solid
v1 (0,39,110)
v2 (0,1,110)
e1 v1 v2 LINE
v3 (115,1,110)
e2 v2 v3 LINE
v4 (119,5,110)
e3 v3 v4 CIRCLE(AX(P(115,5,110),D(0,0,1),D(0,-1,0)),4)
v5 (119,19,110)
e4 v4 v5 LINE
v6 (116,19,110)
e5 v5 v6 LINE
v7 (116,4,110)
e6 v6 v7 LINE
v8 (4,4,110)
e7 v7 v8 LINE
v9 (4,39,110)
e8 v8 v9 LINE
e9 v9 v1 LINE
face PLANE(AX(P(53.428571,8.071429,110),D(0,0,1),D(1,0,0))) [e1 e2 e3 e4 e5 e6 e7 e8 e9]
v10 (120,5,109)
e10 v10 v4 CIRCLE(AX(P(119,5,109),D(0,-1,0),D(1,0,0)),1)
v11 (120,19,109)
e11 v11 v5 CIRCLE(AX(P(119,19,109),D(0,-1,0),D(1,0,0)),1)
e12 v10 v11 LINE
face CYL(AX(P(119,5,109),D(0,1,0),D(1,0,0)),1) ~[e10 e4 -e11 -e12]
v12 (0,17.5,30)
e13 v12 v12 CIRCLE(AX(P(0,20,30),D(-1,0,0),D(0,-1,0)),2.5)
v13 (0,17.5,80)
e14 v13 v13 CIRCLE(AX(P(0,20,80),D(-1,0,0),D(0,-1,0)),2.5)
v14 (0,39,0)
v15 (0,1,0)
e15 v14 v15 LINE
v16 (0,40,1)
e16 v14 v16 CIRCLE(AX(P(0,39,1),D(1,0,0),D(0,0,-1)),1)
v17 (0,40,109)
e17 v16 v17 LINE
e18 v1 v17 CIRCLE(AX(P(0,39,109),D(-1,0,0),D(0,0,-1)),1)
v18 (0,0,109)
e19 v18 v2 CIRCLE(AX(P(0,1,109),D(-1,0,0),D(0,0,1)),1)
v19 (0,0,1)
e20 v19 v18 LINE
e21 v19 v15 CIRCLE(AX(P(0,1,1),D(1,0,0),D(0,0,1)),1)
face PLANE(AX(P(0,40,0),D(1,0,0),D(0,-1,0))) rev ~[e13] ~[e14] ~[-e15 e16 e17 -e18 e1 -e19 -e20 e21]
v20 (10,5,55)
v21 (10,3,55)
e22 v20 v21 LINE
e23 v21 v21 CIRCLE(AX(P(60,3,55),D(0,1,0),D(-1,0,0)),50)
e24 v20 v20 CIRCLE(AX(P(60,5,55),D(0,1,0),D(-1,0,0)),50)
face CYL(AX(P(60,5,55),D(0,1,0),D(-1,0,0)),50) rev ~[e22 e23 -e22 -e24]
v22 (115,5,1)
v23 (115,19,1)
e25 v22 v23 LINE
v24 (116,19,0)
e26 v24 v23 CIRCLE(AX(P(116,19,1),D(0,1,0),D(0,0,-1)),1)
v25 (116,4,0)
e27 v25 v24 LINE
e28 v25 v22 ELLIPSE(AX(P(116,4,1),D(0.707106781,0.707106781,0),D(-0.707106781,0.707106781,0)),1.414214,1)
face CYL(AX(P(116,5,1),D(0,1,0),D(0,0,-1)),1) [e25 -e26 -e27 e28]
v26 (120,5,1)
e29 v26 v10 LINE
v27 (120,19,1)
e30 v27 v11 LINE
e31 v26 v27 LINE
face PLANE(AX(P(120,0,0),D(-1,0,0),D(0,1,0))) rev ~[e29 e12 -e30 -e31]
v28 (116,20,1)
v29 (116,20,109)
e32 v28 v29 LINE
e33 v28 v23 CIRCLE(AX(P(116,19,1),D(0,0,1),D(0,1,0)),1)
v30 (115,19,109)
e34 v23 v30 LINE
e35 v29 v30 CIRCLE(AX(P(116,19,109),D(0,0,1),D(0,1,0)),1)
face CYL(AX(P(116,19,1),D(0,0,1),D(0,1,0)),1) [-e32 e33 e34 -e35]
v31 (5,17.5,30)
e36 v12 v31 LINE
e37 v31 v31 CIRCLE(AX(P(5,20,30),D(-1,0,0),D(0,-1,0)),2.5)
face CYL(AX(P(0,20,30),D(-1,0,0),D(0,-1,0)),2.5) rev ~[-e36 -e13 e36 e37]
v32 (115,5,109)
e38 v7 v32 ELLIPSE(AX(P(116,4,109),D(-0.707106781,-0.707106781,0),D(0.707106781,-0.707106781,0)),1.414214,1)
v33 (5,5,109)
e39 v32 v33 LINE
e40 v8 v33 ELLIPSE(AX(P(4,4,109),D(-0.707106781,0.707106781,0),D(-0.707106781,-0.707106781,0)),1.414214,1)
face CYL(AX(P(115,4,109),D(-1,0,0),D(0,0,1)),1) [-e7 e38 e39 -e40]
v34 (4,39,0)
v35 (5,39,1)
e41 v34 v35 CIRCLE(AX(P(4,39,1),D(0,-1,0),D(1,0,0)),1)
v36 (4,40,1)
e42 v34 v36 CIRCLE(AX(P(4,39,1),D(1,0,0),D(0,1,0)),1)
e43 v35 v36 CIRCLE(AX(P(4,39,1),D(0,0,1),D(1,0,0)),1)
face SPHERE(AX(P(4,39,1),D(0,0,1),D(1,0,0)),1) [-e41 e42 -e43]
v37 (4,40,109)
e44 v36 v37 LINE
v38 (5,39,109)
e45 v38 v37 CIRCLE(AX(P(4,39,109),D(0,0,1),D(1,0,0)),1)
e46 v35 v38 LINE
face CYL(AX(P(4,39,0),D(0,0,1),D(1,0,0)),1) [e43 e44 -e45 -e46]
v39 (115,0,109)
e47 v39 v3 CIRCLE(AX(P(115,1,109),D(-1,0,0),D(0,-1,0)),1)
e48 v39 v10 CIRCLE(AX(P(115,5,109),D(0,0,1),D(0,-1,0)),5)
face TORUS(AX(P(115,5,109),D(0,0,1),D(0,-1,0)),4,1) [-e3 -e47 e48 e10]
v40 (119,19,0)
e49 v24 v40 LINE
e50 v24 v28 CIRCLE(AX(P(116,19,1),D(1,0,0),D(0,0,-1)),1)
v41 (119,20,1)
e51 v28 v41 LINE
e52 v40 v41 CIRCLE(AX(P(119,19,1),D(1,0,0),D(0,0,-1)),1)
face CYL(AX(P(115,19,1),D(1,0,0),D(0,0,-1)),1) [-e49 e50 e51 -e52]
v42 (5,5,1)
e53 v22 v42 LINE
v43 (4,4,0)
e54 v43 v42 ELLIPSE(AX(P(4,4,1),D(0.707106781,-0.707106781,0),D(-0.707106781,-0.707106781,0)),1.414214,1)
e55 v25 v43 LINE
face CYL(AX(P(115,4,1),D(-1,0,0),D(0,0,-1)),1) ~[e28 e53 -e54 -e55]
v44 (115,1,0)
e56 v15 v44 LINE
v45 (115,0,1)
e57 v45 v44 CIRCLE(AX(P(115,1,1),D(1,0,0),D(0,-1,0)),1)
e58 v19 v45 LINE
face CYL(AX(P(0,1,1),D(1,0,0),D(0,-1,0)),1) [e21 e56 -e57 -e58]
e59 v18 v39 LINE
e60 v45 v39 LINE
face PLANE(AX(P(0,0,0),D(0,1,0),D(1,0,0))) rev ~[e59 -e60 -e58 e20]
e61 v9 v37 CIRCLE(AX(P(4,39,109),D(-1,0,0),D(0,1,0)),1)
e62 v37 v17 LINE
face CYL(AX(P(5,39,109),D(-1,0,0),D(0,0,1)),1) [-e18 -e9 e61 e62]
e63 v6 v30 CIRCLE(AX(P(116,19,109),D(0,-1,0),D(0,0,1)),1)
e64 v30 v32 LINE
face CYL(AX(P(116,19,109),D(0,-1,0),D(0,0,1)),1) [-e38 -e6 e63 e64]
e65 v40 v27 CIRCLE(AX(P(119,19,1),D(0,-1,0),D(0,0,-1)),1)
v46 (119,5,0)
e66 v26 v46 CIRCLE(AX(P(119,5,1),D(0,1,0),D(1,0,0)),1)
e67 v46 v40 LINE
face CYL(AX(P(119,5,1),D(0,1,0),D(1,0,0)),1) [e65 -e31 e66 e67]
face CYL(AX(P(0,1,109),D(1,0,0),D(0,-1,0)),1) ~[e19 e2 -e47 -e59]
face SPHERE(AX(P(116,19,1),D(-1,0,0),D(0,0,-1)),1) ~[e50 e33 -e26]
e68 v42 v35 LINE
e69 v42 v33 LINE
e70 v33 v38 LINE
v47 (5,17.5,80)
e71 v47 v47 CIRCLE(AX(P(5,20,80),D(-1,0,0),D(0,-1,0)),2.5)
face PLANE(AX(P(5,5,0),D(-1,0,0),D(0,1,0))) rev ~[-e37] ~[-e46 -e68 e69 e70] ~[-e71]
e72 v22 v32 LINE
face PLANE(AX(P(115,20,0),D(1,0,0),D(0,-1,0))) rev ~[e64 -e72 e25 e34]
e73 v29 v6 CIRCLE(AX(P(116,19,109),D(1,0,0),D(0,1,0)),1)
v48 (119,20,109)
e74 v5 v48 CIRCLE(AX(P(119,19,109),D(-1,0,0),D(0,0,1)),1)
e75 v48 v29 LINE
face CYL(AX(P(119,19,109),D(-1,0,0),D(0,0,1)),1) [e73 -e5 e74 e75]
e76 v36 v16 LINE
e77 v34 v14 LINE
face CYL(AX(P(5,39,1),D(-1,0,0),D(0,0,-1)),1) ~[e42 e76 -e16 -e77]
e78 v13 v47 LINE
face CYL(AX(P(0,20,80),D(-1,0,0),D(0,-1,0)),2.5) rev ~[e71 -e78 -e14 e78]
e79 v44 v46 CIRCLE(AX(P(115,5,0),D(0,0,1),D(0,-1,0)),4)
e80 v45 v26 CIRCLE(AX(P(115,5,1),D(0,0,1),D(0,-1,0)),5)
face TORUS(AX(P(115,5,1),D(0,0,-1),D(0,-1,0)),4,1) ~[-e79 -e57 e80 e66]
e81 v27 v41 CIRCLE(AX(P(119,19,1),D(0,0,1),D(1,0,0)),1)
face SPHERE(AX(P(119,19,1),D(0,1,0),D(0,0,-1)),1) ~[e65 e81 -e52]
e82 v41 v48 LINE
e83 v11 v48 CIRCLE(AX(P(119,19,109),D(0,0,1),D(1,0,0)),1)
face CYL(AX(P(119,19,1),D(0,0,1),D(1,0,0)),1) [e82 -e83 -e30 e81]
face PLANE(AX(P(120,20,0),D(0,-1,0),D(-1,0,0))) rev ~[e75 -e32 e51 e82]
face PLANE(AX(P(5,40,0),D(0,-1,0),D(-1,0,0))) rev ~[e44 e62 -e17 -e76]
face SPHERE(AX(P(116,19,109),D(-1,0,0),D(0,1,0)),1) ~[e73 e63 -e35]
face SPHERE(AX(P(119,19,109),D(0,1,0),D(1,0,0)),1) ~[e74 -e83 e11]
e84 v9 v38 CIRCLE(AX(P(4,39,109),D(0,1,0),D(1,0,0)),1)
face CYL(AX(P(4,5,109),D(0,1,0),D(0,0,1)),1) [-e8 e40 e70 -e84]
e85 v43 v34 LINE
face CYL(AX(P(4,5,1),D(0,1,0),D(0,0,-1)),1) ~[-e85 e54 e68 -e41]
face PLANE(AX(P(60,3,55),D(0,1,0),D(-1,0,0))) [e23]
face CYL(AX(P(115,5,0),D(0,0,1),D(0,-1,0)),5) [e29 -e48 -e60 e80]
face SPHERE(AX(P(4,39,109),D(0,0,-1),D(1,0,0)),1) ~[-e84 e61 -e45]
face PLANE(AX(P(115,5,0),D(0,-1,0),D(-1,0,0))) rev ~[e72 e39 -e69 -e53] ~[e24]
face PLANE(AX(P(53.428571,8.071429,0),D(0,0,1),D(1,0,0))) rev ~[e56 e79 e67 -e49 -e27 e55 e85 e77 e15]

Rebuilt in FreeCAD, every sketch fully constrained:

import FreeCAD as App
import Part
import Sketcher
from FreeCAD import Vector


def edges_at(feature, points):
    """Names of the edges that pass closest to the given points."""
    edges = feature.Shape.Edges
    near = lambda p: min(range(len(edges)), key=lambda i: edges[i].distToShape(Part.Vertex(*p))[0])
    return sorted({f"Edge{near(p) + 1}" for p in points})

doc = App.newDocument("Part")
body = doc.addObject("PartDesign::Body", "Body")

# Sketch on XY plane
sketch1 = body.newObject("Sketcher::SketchObject", "Sketch")
sketch1.AttachmentSupport = (doc.getObject("XY_Plane"), [""])
sketch1.MapMode = "FlatFace"
sketch1.addGeometry(Part.LineSegment(Vector(0, 40, 0), Vector(0, 0, 0)), False)
sketch1.addGeometry(Part.LineSegment(Vector(0, 0, 0), Vector(120, 0, 0)), False)
sketch1.addGeometry(Part.LineSegment(Vector(120, 0, 0), Vector(120, 20, 0)), False)
sketch1.addGeometry(Part.LineSegment(Vector(120, 20, 0), Vector(115, 20, 0)), False)
sketch1.addGeometry(Part.LineSegment(Vector(115, 20, 0), Vector(115, 5, 0)), False)
sketch1.addGeometry(Part.LineSegment(Vector(115, 5, 0), Vector(5, 5, 0)), False)
sketch1.addGeometry(Part.LineSegment(Vector(5, 5, 0), Vector(5, 40, 0)), False)
sketch1.addGeometry(Part.LineSegment(Vector(5, 40, 0), Vector(0, 40, 0)), False)
sketch1.addConstraint(Sketcher.Constraint("Coincident", 0, 2, 1, 1))
sketch1.addConstraint(Sketcher.Constraint("Coincident", 1, 2, 2, 1))
sketch1.addConstraint(Sketcher.Constraint("Coincident", 2, 2, 3, 1))
sketch1.addConstraint(Sketcher.Constraint("Coincident", 3, 2, 4, 1))
sketch1.addConstraint(Sketcher.Constraint("Coincident", 4, 2, 5, 1))
sketch1.addConstraint(Sketcher.Constraint("Coincident", 5, 2, 6, 1))
sketch1.addConstraint(Sketcher.Constraint("Coincident", 6, 2, 7, 1))
sketch1.addConstraint(Sketcher.Constraint("Coincident", 7, 2, 0, 1))
sketch1.addConstraint(Sketcher.Constraint("Vertical", 0))
sketch1.addConstraint(Sketcher.Constraint("Horizontal", 1))
sketch1.addConstraint(Sketcher.Constraint("Vertical", 2))
sketch1.addConstraint(Sketcher.Constraint("Horizontal", 3))
sketch1.addConstraint(Sketcher.Constraint("Vertical", 4))
sketch1.addConstraint(Sketcher.Constraint("Horizontal", 5))
sketch1.addConstraint(Sketcher.Constraint("Vertical", 6))
sketch1.addConstraint(Sketcher.Constraint("Horizontal", 7))
sketch1.addConstraint(Sketcher.Constraint("Coincident", 0, 2, -1, 1))
sketch1.addConstraint(Sketcher.Constraint("Equal", 3, 7))
sketch1.addConstraint(Sketcher.Constraint("DistanceX", 1, 1, 1, 2, 120.0))
sketch1.addConstraint(Sketcher.Constraint("DistanceX", 3, 2, 3, 1, 5.0))
sketch1.addConstraint(Sketcher.Constraint("DistanceY", 0, 2, 0, 1, 40.0))
sketch1.addConstraint(Sketcher.Constraint("DistanceY", 2, 1, 2, 2, 20.0))
sketch1.addConstraint(Sketcher.Constraint("DistanceY", 4, 2, 4, 1, 15.0))
pad1 = body.newObject("PartDesign::Pad", "Pad")
pad1.Profile = sketch1
pad1.Length = 110

# Sketch on YZ plane
sketch2 = body.newObject("Sketcher::SketchObject", "Sketch001")
sketch2.AttachmentSupport = (doc.getObject("YZ_Plane"), [""])
sketch2.MapMode = "FlatFace"
sketch2.addGeometry(Part.Circle(Vector(20, 80, 0), Vector(0, 0, 1), 2.5), False)
sketch2.addGeometry(Part.Circle(Vector(20, 30, 0), Vector(0, 0, 1), 2.5), False)
sketch2.addConstraint(Sketcher.Constraint("Equal", 0, 1))
sketch2.addConstraint(Sketcher.Constraint("Vertical", 0, 3, 1, 3))
sketch2.addConstraint(Sketcher.Constraint("Diameter", 0, 5.0))
sketch2.addConstraint(Sketcher.Constraint("DistanceX", -1, 1, 0, 3, 20.0))
sketch2.addConstraint(Sketcher.Constraint("DistanceY", -1, 1, 0, 3, 80.0))
sketch2.addConstraint(Sketcher.Constraint("DistanceY", -1, 1, 1, 3, 30.0))
pocket1 = body.newObject("PartDesign::Pocket", "Pocket")
pocket1.Profile = sketch2
pocket1.Length = 5
pocket1.Reversed = True

# Sketch on XZ plane
sketch3 = body.newObject("Sketcher::SketchObject", "Sketch002")
sketch3.AttachmentSupport = (doc.getObject("XZ_Plane"), [""])
sketch3.MapMode = "FlatFace"
sketch3.AttachmentOffset = App.Placement(Vector(0, 0, -5), App.Rotation())
sketch3.addGeometry(Part.Circle(Vector(60, 55, 0), Vector(0, 0, 1), 50), False)
sketch3.addConstraint(Sketcher.Constraint("Diameter", 0, 100.0))
sketch3.addConstraint(Sketcher.Constraint("DistanceX", -1, 1, 0, 3, 60.0))
sketch3.addConstraint(Sketcher.Constraint("DistanceY", -1, 1, 0, 3, 55.0))
pocket2 = body.newObject("PartDesign::Pocket", "Pocket001")
pocket2.Profile = sketch3
pocket2.Length = 2
pocket2.Reversed = True
doc.recompute()

fillet = body.newObject("PartDesign::Fillet", "Fillet")
fillet.Base = (pocket2, edges_at(pocket2, [(120, 0, 55)]))
fillet.Radius = 5
doc.recompute()

fillet2 = body.newObject("PartDesign::Fillet", "Fillet001")
fillet2.Base = (fillet, edges_at(fillet, [(57.5, 0, 110)]))
fillet2.Radius = 1
doc.recompute()

fillet3 = body.newObject("PartDesign::Fillet", "Fillet002")
fillet3.Base = (fillet2, edges_at(fillet2, [(57.5, 0, 0)]))
fillet3.Radius = 1
doc.recompute()

fillet4 = body.newObject("PartDesign::Fillet", "Fillet003")
fillet4.Base = (fillet3, edges_at(fillet3, [(120, 20, 55)]))
fillet4.Radius = 1
doc.recompute()

fillet5 = body.newObject("PartDesign::Fillet", "Fillet004")
fillet5.Base = (fillet4, edges_at(fillet4, [
    (115, 20, 55),
    (5, 40, 55),
    (60, 5, 110),
    (5, 22.5, 110),
    (115, 12, 110),
    (115, 12, 0),
    (60, 5, 0),
    (5, 22.5, 0),
    (2.5, 40, 0),
    (2.5, 40, 110),
]))
fillet5.Radius = 1

doc.recompute()
